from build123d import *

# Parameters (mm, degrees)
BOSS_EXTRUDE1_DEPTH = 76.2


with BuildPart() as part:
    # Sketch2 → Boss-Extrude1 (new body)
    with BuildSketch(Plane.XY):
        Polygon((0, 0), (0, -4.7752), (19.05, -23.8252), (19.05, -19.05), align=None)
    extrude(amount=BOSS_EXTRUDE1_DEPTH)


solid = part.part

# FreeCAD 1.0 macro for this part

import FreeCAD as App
import Part
import Sketcher

V = App.Vector
Q = App.Units.Quantity


def add_polygon(sketch, points):
    """Adds a closed chain of lines whose ends are joined by coincident constraints."""
    first, n = sketch.GeometryCount, len(points)
    for a, b in zip(points, points[1:] + points[:1]):
        sketch.addGeometry(Part.LineSegment(App.Vector(*a, 0), App.Vector(*b, 0)), False)
    for i in range(n):
        sketch.addConstraint(Sketcher.Constraint("Coincident", first + i, 2, first + (i + 1) % n, 1))

doc = App.newDocument("Part")
params = doc.addObject("Spreadsheet::Sheet", "Params")
for row, (alias, value) in enumerate([
    ("sketch1_height", "0.188 in"),
    ("pad1_length", "3 in"),
], start=1):
    params.set(f"A{row}", alias)
    params.set(f"B{row}", "=" + value)
    params.setAlias(f"B{row}", alias)

body = doc.addObject("PartDesign::Body", "Body")

sketch1 = doc.addObject("Sketcher::SketchObject", "Sketch")
body.addObject(sketch1)
sketch1.AttachmentSupport = (doc.XY_Plane, [""])
sketch1.MapMode = "FlatFace"
add_polygon(sketch1, [(0, 0), (0, -4.8), (19.1, -23.8), (19.1, -19.1)])
sketch1.addConstraint([
    Sketcher.Constraint("Vertical", 0),
    Sketcher.Constraint("Vertical", 2),
    Sketcher.Constraint("Coincident", 3, 2, -1, 1),
    Sketcher.Constraint("Parallel", 1, 3),
    Sketcher.Constraint("Angle", 1, Q("-45 deg")),
    Sketcher.Constraint("DistanceY", 0, 2, 0, 1, Q("0.188 in")),
    Sketcher.Constraint("DistanceX", -1, 1, 1, 2, Q("0.75 in")),
])
sketch1.setExpression("Constraints[9]", "Params.sketch1_height")
pad1 = doc.addObject("PartDesign::Pad", "Pad")
body.addObject(pad1)
pad1.Profile = sketch1
pad1.setExpression("Length", "Params.pad1_length")

doc.recompute()
